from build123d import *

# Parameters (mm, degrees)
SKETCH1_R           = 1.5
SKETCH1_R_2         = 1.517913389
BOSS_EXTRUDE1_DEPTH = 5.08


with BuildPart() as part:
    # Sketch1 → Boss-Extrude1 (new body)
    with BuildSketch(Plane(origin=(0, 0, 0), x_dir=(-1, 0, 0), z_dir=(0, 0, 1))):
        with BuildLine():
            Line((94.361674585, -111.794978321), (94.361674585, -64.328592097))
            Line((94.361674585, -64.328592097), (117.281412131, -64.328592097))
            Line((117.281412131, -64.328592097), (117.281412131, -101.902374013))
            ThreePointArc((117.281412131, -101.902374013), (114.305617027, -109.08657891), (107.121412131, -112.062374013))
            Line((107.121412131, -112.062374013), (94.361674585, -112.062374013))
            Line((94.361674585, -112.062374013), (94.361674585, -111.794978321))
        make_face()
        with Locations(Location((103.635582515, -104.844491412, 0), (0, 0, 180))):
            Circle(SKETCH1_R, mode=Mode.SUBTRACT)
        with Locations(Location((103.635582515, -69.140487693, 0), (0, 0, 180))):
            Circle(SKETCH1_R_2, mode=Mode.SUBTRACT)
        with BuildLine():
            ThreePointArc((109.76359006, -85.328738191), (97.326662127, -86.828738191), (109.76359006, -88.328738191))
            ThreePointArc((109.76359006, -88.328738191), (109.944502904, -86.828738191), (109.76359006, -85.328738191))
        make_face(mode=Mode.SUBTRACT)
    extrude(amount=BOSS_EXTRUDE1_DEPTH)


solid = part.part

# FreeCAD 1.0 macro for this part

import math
import FreeCAD as App
import Part
import Sketcher

V = App.Vector
Q = App.Units.Quantity

doc = App.newDocument("Part")
body = doc.addObject("PartDesign::Body", "Body")

sketch1 = doc.addObject("Sketcher::SketchObject", "Sketch")
body.addObject(sketch1)
sketch1.AttachmentSupport = (doc.XY_Plane, [""])
sketch1.MapMode = "FlatFace"
sketch1.addGeometry(Part.LineSegment(V(-117.281412, 64.328592, 0), V(-94.361675, 64.328592, 0)), False)
sketch1.addGeometry(Part.LineSegment(V(-94.361675, 64.328592, 0), V(-94.361675, 112.062374, 0)), False)
sketch1.addGeometry(Part.LineSegment(V(-94.361675, 112.062374, 0), V(-107.121412, 112.062374, 0)), False)
sketch1.addGeometry(Part.ArcOfCircle(Part.Circle(V(-107.121412, 101.902374, 0), V(0, 0, 1), 10.16), math.radians(90), math.radians(180)), False)
sketch1.addGeometry(Part.LineSegment(V(-117.281412, 101.902374, 0), V(-117.281412, 64.328592, 0)), False)
sketch1.addGeometry(Part.Circle(V(-103.635583, 104.844491, 0), V(0, 0, 1), 1.5), False)
sketch1.addGeometry(Part.ArcOfCircle(Part.Circle(V(-103.635583, 86.828738, 0), V(0, 0, 1), 6.30892), math.radians(166.245712), math.radians(193.754288)), False)
sketch1.addGeometry(Part.ArcOfCircle(Part.Circle(V(-103.635583, 86.828738, 0), V(0, 0, 1), 6.30892), math.radians(-166.245712), math.radians(166.245712)), False)
sketch1.addGeometry(Part.Circle(V(-103.635583, 69.140488, 0), V(0, 0, 1), 1.517913), False)
sketch1.addConstraint(Sketcher.Constraint("Coincident", 0, 2, 1, 1))
sketch1.addConstraint(Sketcher.Constraint("Coincident", 1, 2, 2, 1))
sketch1.addConstraint(Sketcher.Constraint("Tangent", 2, 2, 3, 1))
sketch1.addConstraint(Sketcher.Constraint("Tangent", 3, 2, 4, 1))
sketch1.addConstraint(Sketcher.Constraint("Coincident", 4, 2, 0, 1))
sketch1.addConstraint(Sketcher.Constraint("Tangent", 6, 1, 7, 2))
sketch1.addConstraint(Sketcher.Constraint("Coincident", 7, 1, 6, 2))
sketch1.addConstraint(Sketcher.Constraint("Horizontal", 0))
sketch1.addConstraint(Sketcher.Constraint("Vertical", 1))
sketch1.addConstraint(Sketcher.Constraint("Horizontal", 2))
sketch1.addConstraint(Sketcher.Constraint("Vertical", 4))
sketch1.addConstraint(Sketcher.Constraint("Vertical", 5, 3, 6, 3))
sketch1.addConstraint(Sketcher.Constraint("Vertical", 7, 3, 8, 3))
sketch1.addConstraint(Sketcher.Constraint("Vertical", 6, 1, 7, 1))
sketch1.addConstraint(Sketcher.Constraint("Radius", 3, Q("0.4 in")))
sketch1.addConstraint(Sketcher.Constraint("Diameter", 5, 3.0))
sketch1.addConstraint(Sketcher.Constraint("Radius", 6, 6.30892))
sketch1.addConstraint(Sketcher.Constraint("Diameter", 8, 3.035827))
sketch1.addConstraint(Sketcher.Constraint("DistanceY", 1, 1, 1, 2, 47.733782))
sketch1.addConstraint(Sketcher.Constraint("DistanceY", 0, 2, 5, 3, 40.515899))
sketch1.addConstraint(Sketcher.Constraint("DistanceY", 6, 3, 6, 1, 1.5))
sketch1.addConstraint(Sketcher.Constraint("DistanceX", 0, 1, 0, 2, 22.919738))
sketch1.addConstraint(Sketcher.Constraint("DistanceY", -1, 1, 5, 3, 104.844491))
sketch1.addConstraint(Sketcher.Constraint("DistanceY", -1, 1, 6, 3, 86.828738))
sketch1.addConstraint(Sketcher.Constraint("DistanceX", 6, 1, -1, 1, 109.76359))
sketch1.addConstraint(Sketcher.Constraint("DistanceX", 3, 3, 5, 3, 3.48583))
sketch1.addConstraint(Sketcher.Constraint("DistanceY", 8, 3, 6, 3, 17.68825))
pad1 = doc.addObject("PartDesign::Pad", "Pad")
body.addObject(pad1)
pad1.Profile = sketch1
pad1.Length = Q("0.2 in")

doc.recompute()
